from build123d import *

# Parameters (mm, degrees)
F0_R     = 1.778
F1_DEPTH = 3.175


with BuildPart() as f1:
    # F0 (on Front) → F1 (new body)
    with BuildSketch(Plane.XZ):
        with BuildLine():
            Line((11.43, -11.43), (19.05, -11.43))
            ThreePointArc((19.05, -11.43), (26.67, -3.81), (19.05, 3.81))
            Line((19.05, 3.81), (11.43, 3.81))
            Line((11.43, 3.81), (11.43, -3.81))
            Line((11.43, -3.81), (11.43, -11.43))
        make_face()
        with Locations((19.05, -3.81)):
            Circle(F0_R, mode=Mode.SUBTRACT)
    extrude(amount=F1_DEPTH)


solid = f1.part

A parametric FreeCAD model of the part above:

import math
import FreeCAD as App
import Part
import Sketcher
Q = App.Units.Quantity

doc = App.newDocument("Part")
body = doc.addObject("PartDesign::Body", "Body")

sketch1 = body.newObject("Sketcher::SketchObject", "Sketch")
sketch1.AttachmentSupport = (doc.getObject("XZ_Plane"), [""])
sketch1.MapMode = "FlatFace"
sketch1.addGeometry(Part.LineSegment(App.Vector(11.4, -11.4, 0), App.Vector(19.1, -11.4, 0)), False)
sketch1.addGeometry(Part.ArcOfCircle(Part.Circle(App.Vector(19.1, -3.8, 0), App.Vector(0, 0, 1), 7.6), math.radians(-90), math.radians(90)), False)
sketch1.addGeometry(Part.LineSegment(App.Vector(19.1, 3.8, 0), App.Vector(11.4, 3.8, 0)), False)
sketch1.addGeometry(Part.LineSegment(App.Vector(11.4, 3.8, 0), App.Vector(11.4, -11.4, 0)), False)
sketch1.addGeometry(Part.Circle(App.Vector(19.1, -3.8, 0), App.Vector(0, 0, 1), 1.8), False)
sketch1.addConstraint(Sketcher.Constraint("Tangent", 0, 2, 1, 1))
sketch1.addConstraint(Sketcher.Constraint("Tangent", 1, 2, 2, 1))
sketch1.addConstraint(Sketcher.Constraint("Coincident", 2, 2, 3, 1))
sketch1.addConstraint(Sketcher.Constraint("Coincident", 3, 2, 0, 1))
sketch1.addConstraint(Sketcher.Constraint("Horizontal", 0))
sketch1.addConstraint(Sketcher.Constraint("Horizontal", 2))
sketch1.addConstraint(Sketcher.Constraint("Vertical", 3))
sketch1.addConstraint(Sketcher.Constraint("Coincident", 4, 3, 1, 3))
sketch1.addConstraint(Sketcher.Constraint("Radius", 1, Q("0.3 in")))
sketch1.addConstraint(Sketcher.Constraint("Diameter", 4, Q("0.14 in")))
sketch1.addConstraint(Sketcher.Constraint("DistanceX", 0, 1, 0, 2, Q("0.3 in")))
sketch1.addConstraint(Sketcher.Constraint("DistanceX", -1, 1, 1, 3, Q("0.75 in")))
sketch1.addConstraint(Sketcher.Constraint("DistanceY", 1, 3, -1, 1, Q("0.15 in")))
pad1 = body.newObject("PartDesign::Pad", "Pad")
pad1.Profile = sketch1
pad1.Length = Q("0.125 in")

doc.recompute()
